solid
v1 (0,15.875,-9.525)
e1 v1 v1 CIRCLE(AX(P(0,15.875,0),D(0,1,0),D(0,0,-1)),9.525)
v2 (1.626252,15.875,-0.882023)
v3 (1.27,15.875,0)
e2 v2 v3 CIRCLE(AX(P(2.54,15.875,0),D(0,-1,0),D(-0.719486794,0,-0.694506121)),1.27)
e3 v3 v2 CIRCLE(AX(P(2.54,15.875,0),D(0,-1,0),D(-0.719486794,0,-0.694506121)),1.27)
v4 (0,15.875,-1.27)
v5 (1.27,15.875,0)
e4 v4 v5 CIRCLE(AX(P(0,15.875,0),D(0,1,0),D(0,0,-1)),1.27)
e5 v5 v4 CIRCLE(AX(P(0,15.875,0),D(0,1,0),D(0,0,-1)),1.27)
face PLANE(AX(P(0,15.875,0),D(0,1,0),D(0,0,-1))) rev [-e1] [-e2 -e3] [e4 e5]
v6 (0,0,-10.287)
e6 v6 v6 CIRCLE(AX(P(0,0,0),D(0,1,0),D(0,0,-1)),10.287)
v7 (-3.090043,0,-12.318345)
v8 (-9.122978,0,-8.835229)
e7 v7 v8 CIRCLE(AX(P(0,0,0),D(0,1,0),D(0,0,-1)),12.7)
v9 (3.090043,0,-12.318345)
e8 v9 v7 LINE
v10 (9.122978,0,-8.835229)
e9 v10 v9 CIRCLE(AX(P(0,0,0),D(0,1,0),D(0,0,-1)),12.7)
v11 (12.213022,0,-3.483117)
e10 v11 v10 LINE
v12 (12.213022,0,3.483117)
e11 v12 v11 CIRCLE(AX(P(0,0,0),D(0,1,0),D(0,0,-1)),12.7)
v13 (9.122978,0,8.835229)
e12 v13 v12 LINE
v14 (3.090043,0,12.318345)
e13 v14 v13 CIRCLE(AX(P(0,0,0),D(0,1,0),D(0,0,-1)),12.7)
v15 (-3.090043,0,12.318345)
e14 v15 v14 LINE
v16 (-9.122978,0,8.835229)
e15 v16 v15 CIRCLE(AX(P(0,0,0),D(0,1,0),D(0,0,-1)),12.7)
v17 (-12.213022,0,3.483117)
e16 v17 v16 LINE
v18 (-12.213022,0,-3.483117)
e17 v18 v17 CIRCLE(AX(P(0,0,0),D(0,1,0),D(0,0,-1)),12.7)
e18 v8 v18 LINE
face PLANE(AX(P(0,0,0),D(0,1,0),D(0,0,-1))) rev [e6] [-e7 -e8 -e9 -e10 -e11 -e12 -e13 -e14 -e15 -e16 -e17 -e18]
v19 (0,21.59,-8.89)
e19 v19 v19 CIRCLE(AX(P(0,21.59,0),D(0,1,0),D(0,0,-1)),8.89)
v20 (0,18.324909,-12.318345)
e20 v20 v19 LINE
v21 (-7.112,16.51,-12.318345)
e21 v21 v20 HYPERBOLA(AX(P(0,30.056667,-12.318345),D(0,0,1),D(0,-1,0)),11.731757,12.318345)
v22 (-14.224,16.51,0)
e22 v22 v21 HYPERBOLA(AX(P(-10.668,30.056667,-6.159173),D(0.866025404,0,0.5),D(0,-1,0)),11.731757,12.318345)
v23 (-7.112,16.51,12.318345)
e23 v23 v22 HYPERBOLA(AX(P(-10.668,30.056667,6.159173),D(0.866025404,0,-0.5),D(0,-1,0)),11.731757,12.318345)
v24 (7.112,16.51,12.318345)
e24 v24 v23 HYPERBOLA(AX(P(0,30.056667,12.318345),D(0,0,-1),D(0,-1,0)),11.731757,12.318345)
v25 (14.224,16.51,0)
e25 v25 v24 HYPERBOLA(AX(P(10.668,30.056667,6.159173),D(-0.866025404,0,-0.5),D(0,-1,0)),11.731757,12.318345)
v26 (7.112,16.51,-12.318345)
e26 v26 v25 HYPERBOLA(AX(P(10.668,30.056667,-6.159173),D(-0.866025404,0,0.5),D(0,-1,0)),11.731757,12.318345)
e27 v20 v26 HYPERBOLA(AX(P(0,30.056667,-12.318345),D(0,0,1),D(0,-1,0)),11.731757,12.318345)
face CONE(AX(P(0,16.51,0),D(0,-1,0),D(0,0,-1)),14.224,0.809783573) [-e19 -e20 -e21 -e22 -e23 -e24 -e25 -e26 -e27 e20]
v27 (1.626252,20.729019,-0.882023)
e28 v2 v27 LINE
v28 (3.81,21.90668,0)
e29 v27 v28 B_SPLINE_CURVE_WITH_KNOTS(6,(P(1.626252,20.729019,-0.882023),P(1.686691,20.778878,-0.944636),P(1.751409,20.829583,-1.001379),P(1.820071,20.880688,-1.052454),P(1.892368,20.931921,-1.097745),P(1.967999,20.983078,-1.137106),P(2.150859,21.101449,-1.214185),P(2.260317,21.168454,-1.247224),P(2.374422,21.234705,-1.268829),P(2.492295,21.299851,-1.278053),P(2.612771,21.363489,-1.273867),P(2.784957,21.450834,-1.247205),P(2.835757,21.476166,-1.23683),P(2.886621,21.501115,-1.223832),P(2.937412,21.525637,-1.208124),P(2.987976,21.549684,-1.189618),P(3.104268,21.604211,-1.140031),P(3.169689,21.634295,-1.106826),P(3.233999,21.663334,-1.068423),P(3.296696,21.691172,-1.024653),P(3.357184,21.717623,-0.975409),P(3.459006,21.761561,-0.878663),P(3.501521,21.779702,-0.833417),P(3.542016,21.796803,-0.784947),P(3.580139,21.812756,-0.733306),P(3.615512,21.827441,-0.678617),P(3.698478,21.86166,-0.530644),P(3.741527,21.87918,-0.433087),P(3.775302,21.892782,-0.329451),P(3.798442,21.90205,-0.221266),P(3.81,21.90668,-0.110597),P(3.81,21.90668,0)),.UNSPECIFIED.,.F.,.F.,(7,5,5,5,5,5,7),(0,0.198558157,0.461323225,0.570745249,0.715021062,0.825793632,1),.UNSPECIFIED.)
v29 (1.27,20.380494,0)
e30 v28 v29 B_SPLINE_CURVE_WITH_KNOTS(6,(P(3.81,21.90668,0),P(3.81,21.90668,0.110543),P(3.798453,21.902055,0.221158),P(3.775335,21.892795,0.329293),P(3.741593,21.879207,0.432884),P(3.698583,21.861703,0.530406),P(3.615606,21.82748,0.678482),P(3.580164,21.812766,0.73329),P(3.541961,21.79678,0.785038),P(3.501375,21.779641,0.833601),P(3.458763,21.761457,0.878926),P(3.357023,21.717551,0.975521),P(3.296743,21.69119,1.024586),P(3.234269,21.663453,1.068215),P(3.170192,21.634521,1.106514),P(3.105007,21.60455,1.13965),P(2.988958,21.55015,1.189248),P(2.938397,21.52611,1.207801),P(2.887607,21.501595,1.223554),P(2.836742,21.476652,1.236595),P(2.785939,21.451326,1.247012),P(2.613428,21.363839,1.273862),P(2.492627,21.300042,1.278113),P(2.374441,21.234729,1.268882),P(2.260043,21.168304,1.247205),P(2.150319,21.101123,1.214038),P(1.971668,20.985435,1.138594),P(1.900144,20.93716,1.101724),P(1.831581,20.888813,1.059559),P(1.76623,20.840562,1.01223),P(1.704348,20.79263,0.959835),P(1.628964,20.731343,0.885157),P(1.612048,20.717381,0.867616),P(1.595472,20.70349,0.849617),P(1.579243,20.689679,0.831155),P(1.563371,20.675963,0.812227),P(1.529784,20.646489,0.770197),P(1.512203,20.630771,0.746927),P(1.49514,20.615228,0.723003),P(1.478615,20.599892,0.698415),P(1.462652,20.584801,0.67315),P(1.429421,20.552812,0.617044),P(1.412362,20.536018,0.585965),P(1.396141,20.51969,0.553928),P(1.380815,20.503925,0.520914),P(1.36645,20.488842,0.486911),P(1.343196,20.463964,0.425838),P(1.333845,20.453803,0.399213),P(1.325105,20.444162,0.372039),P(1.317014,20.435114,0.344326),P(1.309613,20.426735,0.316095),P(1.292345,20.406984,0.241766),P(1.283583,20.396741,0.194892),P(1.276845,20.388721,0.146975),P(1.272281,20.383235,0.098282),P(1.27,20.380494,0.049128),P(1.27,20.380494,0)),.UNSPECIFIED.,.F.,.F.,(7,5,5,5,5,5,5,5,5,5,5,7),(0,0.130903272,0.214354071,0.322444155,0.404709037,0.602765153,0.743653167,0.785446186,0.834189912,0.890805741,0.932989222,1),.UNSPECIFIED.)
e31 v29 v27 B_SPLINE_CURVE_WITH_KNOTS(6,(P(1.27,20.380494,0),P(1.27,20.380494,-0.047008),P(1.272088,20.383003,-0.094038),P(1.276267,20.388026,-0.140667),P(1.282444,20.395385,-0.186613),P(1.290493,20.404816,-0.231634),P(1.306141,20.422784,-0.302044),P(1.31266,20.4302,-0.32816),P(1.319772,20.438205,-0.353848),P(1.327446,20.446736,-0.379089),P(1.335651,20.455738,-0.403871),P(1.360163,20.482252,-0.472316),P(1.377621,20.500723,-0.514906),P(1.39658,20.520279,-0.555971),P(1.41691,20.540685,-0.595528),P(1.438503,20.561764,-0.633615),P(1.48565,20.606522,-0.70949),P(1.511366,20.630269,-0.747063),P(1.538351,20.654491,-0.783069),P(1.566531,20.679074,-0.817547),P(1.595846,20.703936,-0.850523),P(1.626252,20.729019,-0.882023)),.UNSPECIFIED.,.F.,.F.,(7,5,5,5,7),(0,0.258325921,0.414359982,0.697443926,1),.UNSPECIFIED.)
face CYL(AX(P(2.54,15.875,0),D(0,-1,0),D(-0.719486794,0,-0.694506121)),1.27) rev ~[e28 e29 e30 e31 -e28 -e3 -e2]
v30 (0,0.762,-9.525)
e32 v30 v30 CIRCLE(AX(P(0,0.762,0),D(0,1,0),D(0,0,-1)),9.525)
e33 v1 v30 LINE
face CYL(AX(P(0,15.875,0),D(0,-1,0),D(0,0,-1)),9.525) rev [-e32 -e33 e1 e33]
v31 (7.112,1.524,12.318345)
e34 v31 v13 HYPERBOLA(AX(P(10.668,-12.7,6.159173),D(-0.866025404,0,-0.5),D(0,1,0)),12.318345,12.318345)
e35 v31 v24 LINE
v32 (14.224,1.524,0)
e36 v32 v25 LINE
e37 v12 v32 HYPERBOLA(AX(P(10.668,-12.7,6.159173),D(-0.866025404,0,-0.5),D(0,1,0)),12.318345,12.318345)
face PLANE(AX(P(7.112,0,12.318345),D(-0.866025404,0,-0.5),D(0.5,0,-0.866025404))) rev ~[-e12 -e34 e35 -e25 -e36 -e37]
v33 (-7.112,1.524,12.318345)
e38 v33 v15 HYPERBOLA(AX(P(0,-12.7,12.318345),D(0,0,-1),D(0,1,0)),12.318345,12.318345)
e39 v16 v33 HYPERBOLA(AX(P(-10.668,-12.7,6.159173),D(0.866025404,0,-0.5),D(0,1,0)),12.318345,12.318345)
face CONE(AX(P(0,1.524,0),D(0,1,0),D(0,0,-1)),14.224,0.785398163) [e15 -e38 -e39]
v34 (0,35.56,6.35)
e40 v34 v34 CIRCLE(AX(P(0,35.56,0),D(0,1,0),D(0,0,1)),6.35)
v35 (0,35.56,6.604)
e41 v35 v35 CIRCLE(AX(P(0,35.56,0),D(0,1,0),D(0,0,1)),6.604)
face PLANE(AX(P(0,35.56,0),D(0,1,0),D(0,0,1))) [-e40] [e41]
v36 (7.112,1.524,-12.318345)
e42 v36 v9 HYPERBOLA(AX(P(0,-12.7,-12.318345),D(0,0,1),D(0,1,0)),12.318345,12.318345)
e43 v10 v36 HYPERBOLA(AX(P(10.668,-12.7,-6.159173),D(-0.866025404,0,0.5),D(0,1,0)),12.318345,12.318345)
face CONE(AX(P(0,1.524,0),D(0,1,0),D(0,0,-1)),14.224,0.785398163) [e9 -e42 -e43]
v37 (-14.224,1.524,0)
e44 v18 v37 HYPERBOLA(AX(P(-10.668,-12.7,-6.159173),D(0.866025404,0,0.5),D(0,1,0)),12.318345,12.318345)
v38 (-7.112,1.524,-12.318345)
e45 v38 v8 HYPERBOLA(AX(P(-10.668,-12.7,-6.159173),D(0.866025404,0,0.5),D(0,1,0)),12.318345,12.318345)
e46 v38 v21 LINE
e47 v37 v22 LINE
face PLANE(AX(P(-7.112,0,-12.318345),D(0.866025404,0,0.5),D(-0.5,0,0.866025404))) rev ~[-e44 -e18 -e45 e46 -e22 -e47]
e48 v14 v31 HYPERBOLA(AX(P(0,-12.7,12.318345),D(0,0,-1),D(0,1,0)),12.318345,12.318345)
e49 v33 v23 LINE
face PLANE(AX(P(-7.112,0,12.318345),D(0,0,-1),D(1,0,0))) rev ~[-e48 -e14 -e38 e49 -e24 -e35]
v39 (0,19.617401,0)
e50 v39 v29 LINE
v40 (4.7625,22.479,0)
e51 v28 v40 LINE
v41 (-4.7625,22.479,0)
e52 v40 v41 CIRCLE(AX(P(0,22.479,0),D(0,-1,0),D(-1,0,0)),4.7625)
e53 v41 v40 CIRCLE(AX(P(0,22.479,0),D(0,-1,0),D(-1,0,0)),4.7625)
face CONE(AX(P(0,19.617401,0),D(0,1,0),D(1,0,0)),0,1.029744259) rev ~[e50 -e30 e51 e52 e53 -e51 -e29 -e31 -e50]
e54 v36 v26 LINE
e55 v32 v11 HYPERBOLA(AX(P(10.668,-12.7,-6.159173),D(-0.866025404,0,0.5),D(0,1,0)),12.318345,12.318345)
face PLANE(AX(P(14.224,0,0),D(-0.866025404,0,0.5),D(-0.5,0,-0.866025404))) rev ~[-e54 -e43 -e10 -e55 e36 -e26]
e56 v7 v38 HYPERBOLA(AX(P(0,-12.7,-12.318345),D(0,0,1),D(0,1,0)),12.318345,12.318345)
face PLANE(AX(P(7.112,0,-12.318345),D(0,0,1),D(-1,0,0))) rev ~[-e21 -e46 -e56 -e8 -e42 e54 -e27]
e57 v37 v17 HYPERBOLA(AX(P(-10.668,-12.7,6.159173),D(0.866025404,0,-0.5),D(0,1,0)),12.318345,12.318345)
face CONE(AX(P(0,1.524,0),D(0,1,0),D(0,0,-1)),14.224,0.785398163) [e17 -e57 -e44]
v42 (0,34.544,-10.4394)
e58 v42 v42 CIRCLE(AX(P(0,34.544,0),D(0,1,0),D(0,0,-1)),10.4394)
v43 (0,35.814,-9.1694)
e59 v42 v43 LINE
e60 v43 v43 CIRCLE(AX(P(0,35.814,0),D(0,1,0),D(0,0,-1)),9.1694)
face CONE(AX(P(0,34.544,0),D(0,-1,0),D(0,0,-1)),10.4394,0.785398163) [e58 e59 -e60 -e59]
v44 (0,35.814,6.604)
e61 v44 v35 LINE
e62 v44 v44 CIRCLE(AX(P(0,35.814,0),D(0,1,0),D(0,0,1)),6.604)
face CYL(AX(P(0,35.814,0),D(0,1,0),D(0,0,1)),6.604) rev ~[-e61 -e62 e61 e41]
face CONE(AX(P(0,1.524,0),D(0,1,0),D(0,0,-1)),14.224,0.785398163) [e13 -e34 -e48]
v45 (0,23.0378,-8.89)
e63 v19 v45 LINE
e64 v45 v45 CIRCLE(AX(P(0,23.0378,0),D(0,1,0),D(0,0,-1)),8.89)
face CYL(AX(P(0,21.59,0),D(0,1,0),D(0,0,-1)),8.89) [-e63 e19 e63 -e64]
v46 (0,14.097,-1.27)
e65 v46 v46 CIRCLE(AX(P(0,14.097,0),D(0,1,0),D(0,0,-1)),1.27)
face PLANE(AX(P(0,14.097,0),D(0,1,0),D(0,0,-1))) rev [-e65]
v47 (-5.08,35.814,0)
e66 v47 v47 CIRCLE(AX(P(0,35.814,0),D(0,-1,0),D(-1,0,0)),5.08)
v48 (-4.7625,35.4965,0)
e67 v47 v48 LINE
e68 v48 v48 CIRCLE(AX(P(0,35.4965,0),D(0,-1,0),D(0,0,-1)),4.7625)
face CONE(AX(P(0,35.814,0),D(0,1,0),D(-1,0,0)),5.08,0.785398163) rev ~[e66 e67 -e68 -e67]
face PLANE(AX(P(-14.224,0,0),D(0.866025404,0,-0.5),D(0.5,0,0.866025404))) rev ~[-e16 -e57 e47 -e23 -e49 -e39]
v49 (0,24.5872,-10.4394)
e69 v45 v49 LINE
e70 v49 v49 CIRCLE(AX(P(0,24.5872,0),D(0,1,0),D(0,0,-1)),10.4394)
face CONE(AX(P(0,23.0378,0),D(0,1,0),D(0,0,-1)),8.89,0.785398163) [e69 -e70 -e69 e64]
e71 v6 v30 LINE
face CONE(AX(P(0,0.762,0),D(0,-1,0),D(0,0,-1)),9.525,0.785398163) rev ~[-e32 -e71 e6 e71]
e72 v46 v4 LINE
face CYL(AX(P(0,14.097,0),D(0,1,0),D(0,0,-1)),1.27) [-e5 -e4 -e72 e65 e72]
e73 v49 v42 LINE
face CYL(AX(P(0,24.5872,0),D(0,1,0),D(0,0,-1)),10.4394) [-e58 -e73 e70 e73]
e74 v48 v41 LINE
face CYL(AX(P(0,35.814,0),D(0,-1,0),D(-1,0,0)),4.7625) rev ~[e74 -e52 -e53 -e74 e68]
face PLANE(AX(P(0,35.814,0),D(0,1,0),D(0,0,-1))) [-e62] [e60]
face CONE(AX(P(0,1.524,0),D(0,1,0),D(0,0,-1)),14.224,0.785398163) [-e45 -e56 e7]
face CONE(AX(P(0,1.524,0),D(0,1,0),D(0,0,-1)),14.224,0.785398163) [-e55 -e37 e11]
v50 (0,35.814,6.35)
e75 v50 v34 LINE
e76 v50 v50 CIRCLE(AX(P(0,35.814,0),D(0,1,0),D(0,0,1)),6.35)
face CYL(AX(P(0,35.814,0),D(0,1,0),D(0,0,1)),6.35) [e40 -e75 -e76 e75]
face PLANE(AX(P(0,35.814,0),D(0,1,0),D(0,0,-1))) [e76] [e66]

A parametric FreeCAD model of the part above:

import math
import FreeCAD as App
import Part
import Sketcher
from FreeCAD import Vector
Q = App.Units.Quantity


def edges_at(feature, points):
    """Names of the edges that pass closest to the given points."""
    edges = feature.Shape.Edges
    near = lambda p: min(range(len(edges)), key=lambda i: edges[i].distToShape(Part.Vertex(*p))[0])
    return sorted({f"Edge{near(p) + 1}" for p in points})

doc = App.newDocument("Part")
params = doc.addObject("Spreadsheet::Sheet", "Params")
for row, (alias, value) in enumerate([
    ("sketch1_width", "0.05 in"),
    ("sketch1_height", "0.65 in"),
    ("sketch1_height2", "0.07 in"),
    ("sketch1_length", "0.29 in"),
    ("sketch1_width2", "0.185 in"),
    ("revolution_angle", "360 deg"),
    ("sketch2_diameter", "0.375 in"),
    ("hole_diameter", "0.375 in"),
    ("hole_depth", "0.525 in"),
    ("hole_csink_diameter", "0.4 in"),
    ("sketch3_diameter", "0.1 in"),
    ("chamfer_size", "0.06 in"),
    ("sketch4_radius", "0.56 in"),
    ("chamfer2_size", "0.05 in"),
    ("sketch5_diameter", "0.5 in"),
    ("sketch5_diameter2", "0.52 in"),
    ("pocket3_length", "0.01 in"),
    ("chamfer3_size", "0.03 in"),
], start=1):
    params.set(f"A{row}", alias)
    params.set(f"B{row}", "=" + value)
    params.setAlias(f"B{row}", alias)

body = doc.addObject("PartDesign::Body", "Body")

sketch1 = doc.addObject("Sketcher::SketchObject", "Sketch")
body.addObject(sketch1)
sketch1.AttachmentSupport = (doc.XY_Plane, [""])
sketch1.MapMode = "FlatFace"
sketch1.addGeometry([
    Part.LineSegment(Vector(9.5, 0, 0), Vector(14.2, 0, 0)),
    Part.LineSegment(Vector(14.2, 0, 0), Vector(14.2, 16.5, 0)),
    Part.LineSegment(Vector(14.2, 16.5, 0), Vector(8.9, 21.6, 0)),
    Part.LineSegment(Vector(8.9, 21.6, 0), Vector(8.9, 23, 0)),
    Part.LineSegment(Vector(8.9, 23, 0), Vector(10.4, 24.6, 0)),
    Part.LineSegment(Vector(10.4, 24.6, 0), Vector(10.4, 35.8, 0)),
    Part.LineSegment(Vector(10.4, 35.8, 0), Vector(0, 35.8, 0)),
    Part.LineSegment(Vector(0, 35.8, 0), Vector(0, 14.1, 0)),
    Part.LineSegment(Vector(0, 14.1, 0), Vector(1.3, 14.1, 0)),
    Part.LineSegment(Vector(1.3, 14.1, 0), Vector(1.3, 15.9, 0)),
    Part.LineSegment(Vector(1.3, 15.9, 0), Vector(9.5, 15.9, 0)),
    Part.LineSegment(Vector(9.5, 15.9, 0), Vector(9.5, 0, 0)),
], False)
sketch1.addConstraint([
    Sketcher.Constraint("Coincident", 0, 2, 1, 1),
    Sketcher.Constraint("Coincident", 1, 2, 2, 1),
    Sketcher.Constraint("Coincident", 2, 2, 3, 1),
    Sketcher.Constraint("Coincident", 3, 2, 4, 1),
    Sketcher.Constraint("Coincident", 4, 2, 5, 1),
    Sketcher.Constraint("Coincident", 5, 2, 6, 1),
    Sketcher.Constraint("Coincident", 6, 2, 7, 1),
    Sketcher.Constraint("Coincident", 7, 2, 8, 1),
    Sketcher.Constraint("Coincident", 8, 2, 9, 1),
    Sketcher.Constraint("Coincident", 9, 2, 10, 1),
    Sketcher.Constraint("Coincident", 10, 2, 11, 1),
    Sketcher.Constraint("Coincident", 11, 2, 0, 1),
    Sketcher.Constraint("Horizontal", 0),
    Sketcher.Constraint("Vertical", 1),
    Sketcher.Constraint("Vertical", 3),
    Sketcher.Constraint("Vertical", 5),
    Sketcher.Constraint("Horizontal", 6),
    Sketcher.Constraint("Vertical", 7),
    Sketcher.Constraint("Horizontal", 8),
    Sketcher.Constraint("Vertical", 9),
    Sketcher.Constraint("Horizontal", 10),
    Sketcher.Constraint("Vertical", 11),
    Sketcher.Constraint("PointOnObject", 0, 2, -1),
    Sketcher.Constraint("PointOnObject", 6, 2, -2),
    Sketcher.Constraint("Angle", 4, Q("45 deg")),
    Sketcher.Constraint("DistanceX", 8, 1, 8, 2, Q("0.05 in")),
    Sketcher.Constraint("DistanceY", 1, 1, 1, 2, Q("0.65 in")),
    Sketcher.Constraint("DistanceY", 9, 1, 9, 2, Q("0.07 in")),
    Sketcher.Constraint("DistanceY", 1, 2, 2, 2, Q("0.2 in")),
    Sketcher.Constraint("DistanceX", 8, 2, 2, 2, Q("0.3 in")),
    Sketcher.Constraint("Distance", 2, Q("0.29 in")),
    Sketcher.Constraint("DistanceX", 0, 1, 0, 2, Q("0.185 in")),
    Sketcher.Constraint("DistanceX", 6, 2, 6, 1, Q("0.411 in")),
    Sketcher.Constraint("DistanceY", 3, 1, 3, 2, Q("0.057 in")),
    Sketcher.Constraint("DistanceY", 5, 1, 5, 2, Q("0.442 in")),
    Sketcher.Constraint("DistanceY", 7, 2, 7, 1, Q("0.855 in")),
])
sketch1.setExpression("Constraints[25]", "Params.sketch1_width")
sketch1.setExpression("Constraints[26]", "Params.sketch1_height")
sketch1.setExpression("Constraints[27]", "Params.sketch1_height2")
sketch1.setExpression("Constraints[30]", "Params.sketch1_length")
sketch1.setExpression("Constraints[31]", "Params.sketch1_width2")
revolution = doc.addObject("PartDesign::Revolution", "Revolution")
body.addObject(revolution)
revolution.Profile = sketch1
revolution.ReferenceAxis = (sketch1, ["V_Axis"])
revolution.setExpression("Angle", "Params.revolution_angle")

sketch2 = doc.addObject("Sketcher::SketchObject", "Sketch001")
body.addObject(sketch2)
sketch2.AttachmentSupport = (doc.XZ_Plane, [""])
sketch2.MapMode = "FlatFace"
sketch2.AttachmentOffset = App.Placement(Vector(0, 0, -1.41 * 25.4), App.Rotation())
sketch2.addGeometry(Part.Circle(Vector(0, 0, 0), Vector(0, 0, 1), 4.8), False)
sketch2.addConstraint([
    Sketcher.Constraint("Coincident", 0, 3, -1, 1),
    Sketcher.Constraint("Diameter", 0, Q("0.375 in")),
])
sketch2.setExpression("Constraints[1]", "Params.sketch2_diameter")
doc.recompute()
hole = doc.addObject("PartDesign::Hole", "Hole")
body.addObject(hole)
hole.Profile = sketch2
hole.ThreadType = "None"
hole.setExpression("Diameter", "Params.hole_diameter")
hole.DepthType = "Dimension"
hole.setExpression("Depth", "Params.hole_depth")
hole.DrillPoint = "Angled"
hole.DrillPointAngle = 118
hole.HoleCutType = "Countersink"
hole.setExpression("HoleCutDiameter", "Params.hole_csink_diameter")
hole.HoleCutCountersinkAngle = 90
hole.Reversed = True

sketch3 = doc.addObject("Sketcher::SketchObject", "Sketch002")
body.addObject(sketch3)
sketch3.AttachmentSupport = (doc.XZ_Plane, [""])
sketch3.MapMode = "FlatFace"
sketch3.AttachmentOffset = App.Placement(Vector(0, 0, -0.625 * 25.4), App.Rotation())
sketch3.addGeometry(Part.Circle(Vector(2.5, 0, 0), Vector(0, 0, 1), 1.3), False)
sketch3.addConstraint([
    Sketcher.Constraint("PointOnObject", 0, 3, -1),
    Sketcher.Constraint("Diameter", 0, Q("0.1 in")),
    Sketcher.Constraint("DistanceX", -1, 1, 0, 3, Q("0.1 in")),
])
sketch3.setExpression("Constraints[1]", "Params.sketch3_diameter")
pocket1 = doc.addObject("PartDesign::Pocket", "Pocket")
body.addObject(pocket1)
pocket1.Profile = sketch3
pocket1.Type = "ThroughAll"
doc.recompute()

chamfer = doc.addObject("PartDesign::Chamfer", "Chamfer")
body.addObject(chamfer)
chamfer.Base = (pocket1, edges_at(pocket1, [(0, 0, 14.224)]))
chamfer.setExpression("Size", "Params.chamfer_size")

sketch4 = doc.addObject("Sketcher::SketchObject", "Sketch003")
body.addObject(sketch4)
sketch4.AttachmentSupport = (doc.XZ_Plane, [""])
sketch4.MapMode = "FlatFace"
sketch4.addGeometry([
    Part.ArcOfCircle(Part.Circle(Vector(0, 0, 0), Vector(0, 0, 1), 14), math.radians(-60), math.radians(0)),
    Part.LineSegment(Vector(14, 0, 0), Vector(7, -12, 0)),
    Part.LineSegment(Vector(7, 12, 0), Vector(14, 0, 0)),
    Part.ArcOfCircle(Part.Circle(Vector(0, 0, 0), Vector(0, 0, 1), 14), math.radians(0), math.radians(60)),
    Part.LineSegment(Vector(-7, 12, 0), Vector(7, 12, 0)),
    Part.ArcOfCircle(Part.Circle(Vector(0, 0, 0), Vector(0, 0, 1), 14), math.radians(60), math.radians(120)),
    Part.ArcOfCircle(Part.Circle(Vector(0, 0, 0), Vector(0, 0, 1), 14), math.radians(-120), math.radians(-60)),
    Part.LineSegment(Vector(7, -12, 0), Vector(-7, -12, 0)),
    Part.LineSegment(Vector(-14, 0, 0), Vector(-7, 12, 0)),
    Part.ArcOfCircle(Part.Circle(Vector(0, 0, 0), Vector(0, 0, 1), 14), math.radians(120), math.radians(180)),
    Part.ArcOfCircle(Part.Circle(Vector(0, 0, 0), Vector(0, 0, 1), 14), math.radians(-180), math.radians(-120)),
    Part.LineSegment(Vector(-7, -12, 0), Vector(-14, 0, 0)),
], False)
sketch4.addConstraint([
    Sketcher.Constraint("Coincident", 0, 1, 1, 2),
    Sketcher.Constraint("Coincident", 1, 1, 0, 2),
    Sketcher.Constraint("Coincident", 2, 1, 3, 2),
    Sketcher.Constraint("Coincident", 3, 1, 2, 2),
    Sketcher.Constraint("Coincident", 4, 1, 5, 2),
    Sketcher.Constraint("Coincident", 5, 1, 4, 2),
    Sketcher.Constraint("Coincident", 6, 1, 7, 2),
    Sketcher.Constraint("Coincident", 7, 1, 6, 2),
    Sketcher.Constraint("Coincident", 8, 1, 9, 2),
    Sketcher.Constraint("Coincident", 9, 1, 8, 2),
    Sketcher.Constraint("Coincident", 10, 1, 11, 2),
    Sketcher.Constraint("Coincident", 11, 1, 10, 2),
    Sketcher.Constraint("Horizontal", 4),
    Sketcher.Constraint("Horizontal", 7),
    Sketcher.Constraint("Coincident", 0, 3, -1, 1),
    Sketcher.Constraint("Coincident", 3, 3, -1, 1),
    Sketcher.Constraint("Coincident", 5, 3, -1, 1),
    Sketcher.Constraint("Coincident", 6, 3, -1, 1),
    Sketcher.Constraint("Coincident", 9, 3, -1, 1),
    Sketcher.Constraint("Coincident", 10, 3, -1, 1),
    Sketcher.Constraint("Coincident", 3, 1, 1, 1),
    Sketcher.Constraint("Coincident", 5, 1, 2, 1),
    Sketcher.Constraint("Coincident", 7, 1, 0, 1),
    Sketcher.Constraint("Coincident", 9, 1, 4, 1),
    Sketcher.Constraint("Coincident", 10, 1, 8, 1),
    Sketcher.Constraint("PointOnObject", 1, 1, -1),
    Sketcher.Constraint("PointOnObject", 8, 1, -1),
    Sketcher.Constraint("Parallel", 1, 8),
    Sketcher.Constraint("Parallel", 2, 11),
    Sketcher.Constraint("Radius", 0, Q("0.56 in")),
    Sketcher.Constraint("Angle", 1, Q("-120 deg")),
])
sketch4.setExpression("Constraints[29]", "Params.sketch4_radius")
pocket2 = doc.addObject("PartDesign::Pocket", "Pocket001")
body.addObject(pocket2)
pocket2.Profile = sketch4
pocket2.Type = "ThroughAll"
doc.recompute()

chamfer2 = doc.addObject("PartDesign::Chamfer", "Chamfer001")
body.addObject(chamfer2)
chamfer2.Base = (pocket2, edges_at(pocket2, [(0, 35.814, 10.439)]))
chamfer2.setExpression("Size", "Params.chamfer2_size")

sketch5 = doc.addObject("Sketcher::SketchObject", "Sketch004")
body.addObject(sketch5)
sketch5.AttachmentSupport = (doc.XZ_Plane, [""])
sketch5.MapMode = "FlatFace"
sketch5.AttachmentOffset = App.Placement(Vector(0, 0, -1.41 * 25.4), App.Rotation())
sketch5.addGeometry([
    Part.Circle(Vector(0, 0, 0), Vector(0, 0, 1), 7),
    Part.Circle(Vector(0, 0, 0), Vector(0, 0, 1), 6),
], False)
sketch5.addConstraint([
    Sketcher.Constraint("Coincident", 0, 3, -1, 1),
    Sketcher.Constraint("Coincident", 1, 3, -1, 1),
    Sketcher.Constraint("Diameter", 1, Q("0.5 in")),
    Sketcher.Constraint("Diameter", 0, Q("0.52 in")),
])
sketch5.setExpression("Constraints[2]", "Params.sketch5_diameter")
sketch5.setExpression("Constraints[3]", "Params.sketch5_diameter2")
pocket3 = doc.addObject("PartDesign::Pocket", "Pocket002")
body.addObject(pocket3)
pocket3.Profile = sketch5
pocket3.setExpression("Length", "Params.pocket3_length")
pocket3.Reversed = True
doc.recompute()

chamfer3 = doc.addObject("PartDesign::Chamfer", "Chamfer002")
body.addObject(chamfer3)
chamfer3.Base = (pocket3, edges_at(pocket3, [(0, 0, 9.525)]))
chamfer3.setExpression("Size", "Params.chamfer3_size")

doc.recompute()
